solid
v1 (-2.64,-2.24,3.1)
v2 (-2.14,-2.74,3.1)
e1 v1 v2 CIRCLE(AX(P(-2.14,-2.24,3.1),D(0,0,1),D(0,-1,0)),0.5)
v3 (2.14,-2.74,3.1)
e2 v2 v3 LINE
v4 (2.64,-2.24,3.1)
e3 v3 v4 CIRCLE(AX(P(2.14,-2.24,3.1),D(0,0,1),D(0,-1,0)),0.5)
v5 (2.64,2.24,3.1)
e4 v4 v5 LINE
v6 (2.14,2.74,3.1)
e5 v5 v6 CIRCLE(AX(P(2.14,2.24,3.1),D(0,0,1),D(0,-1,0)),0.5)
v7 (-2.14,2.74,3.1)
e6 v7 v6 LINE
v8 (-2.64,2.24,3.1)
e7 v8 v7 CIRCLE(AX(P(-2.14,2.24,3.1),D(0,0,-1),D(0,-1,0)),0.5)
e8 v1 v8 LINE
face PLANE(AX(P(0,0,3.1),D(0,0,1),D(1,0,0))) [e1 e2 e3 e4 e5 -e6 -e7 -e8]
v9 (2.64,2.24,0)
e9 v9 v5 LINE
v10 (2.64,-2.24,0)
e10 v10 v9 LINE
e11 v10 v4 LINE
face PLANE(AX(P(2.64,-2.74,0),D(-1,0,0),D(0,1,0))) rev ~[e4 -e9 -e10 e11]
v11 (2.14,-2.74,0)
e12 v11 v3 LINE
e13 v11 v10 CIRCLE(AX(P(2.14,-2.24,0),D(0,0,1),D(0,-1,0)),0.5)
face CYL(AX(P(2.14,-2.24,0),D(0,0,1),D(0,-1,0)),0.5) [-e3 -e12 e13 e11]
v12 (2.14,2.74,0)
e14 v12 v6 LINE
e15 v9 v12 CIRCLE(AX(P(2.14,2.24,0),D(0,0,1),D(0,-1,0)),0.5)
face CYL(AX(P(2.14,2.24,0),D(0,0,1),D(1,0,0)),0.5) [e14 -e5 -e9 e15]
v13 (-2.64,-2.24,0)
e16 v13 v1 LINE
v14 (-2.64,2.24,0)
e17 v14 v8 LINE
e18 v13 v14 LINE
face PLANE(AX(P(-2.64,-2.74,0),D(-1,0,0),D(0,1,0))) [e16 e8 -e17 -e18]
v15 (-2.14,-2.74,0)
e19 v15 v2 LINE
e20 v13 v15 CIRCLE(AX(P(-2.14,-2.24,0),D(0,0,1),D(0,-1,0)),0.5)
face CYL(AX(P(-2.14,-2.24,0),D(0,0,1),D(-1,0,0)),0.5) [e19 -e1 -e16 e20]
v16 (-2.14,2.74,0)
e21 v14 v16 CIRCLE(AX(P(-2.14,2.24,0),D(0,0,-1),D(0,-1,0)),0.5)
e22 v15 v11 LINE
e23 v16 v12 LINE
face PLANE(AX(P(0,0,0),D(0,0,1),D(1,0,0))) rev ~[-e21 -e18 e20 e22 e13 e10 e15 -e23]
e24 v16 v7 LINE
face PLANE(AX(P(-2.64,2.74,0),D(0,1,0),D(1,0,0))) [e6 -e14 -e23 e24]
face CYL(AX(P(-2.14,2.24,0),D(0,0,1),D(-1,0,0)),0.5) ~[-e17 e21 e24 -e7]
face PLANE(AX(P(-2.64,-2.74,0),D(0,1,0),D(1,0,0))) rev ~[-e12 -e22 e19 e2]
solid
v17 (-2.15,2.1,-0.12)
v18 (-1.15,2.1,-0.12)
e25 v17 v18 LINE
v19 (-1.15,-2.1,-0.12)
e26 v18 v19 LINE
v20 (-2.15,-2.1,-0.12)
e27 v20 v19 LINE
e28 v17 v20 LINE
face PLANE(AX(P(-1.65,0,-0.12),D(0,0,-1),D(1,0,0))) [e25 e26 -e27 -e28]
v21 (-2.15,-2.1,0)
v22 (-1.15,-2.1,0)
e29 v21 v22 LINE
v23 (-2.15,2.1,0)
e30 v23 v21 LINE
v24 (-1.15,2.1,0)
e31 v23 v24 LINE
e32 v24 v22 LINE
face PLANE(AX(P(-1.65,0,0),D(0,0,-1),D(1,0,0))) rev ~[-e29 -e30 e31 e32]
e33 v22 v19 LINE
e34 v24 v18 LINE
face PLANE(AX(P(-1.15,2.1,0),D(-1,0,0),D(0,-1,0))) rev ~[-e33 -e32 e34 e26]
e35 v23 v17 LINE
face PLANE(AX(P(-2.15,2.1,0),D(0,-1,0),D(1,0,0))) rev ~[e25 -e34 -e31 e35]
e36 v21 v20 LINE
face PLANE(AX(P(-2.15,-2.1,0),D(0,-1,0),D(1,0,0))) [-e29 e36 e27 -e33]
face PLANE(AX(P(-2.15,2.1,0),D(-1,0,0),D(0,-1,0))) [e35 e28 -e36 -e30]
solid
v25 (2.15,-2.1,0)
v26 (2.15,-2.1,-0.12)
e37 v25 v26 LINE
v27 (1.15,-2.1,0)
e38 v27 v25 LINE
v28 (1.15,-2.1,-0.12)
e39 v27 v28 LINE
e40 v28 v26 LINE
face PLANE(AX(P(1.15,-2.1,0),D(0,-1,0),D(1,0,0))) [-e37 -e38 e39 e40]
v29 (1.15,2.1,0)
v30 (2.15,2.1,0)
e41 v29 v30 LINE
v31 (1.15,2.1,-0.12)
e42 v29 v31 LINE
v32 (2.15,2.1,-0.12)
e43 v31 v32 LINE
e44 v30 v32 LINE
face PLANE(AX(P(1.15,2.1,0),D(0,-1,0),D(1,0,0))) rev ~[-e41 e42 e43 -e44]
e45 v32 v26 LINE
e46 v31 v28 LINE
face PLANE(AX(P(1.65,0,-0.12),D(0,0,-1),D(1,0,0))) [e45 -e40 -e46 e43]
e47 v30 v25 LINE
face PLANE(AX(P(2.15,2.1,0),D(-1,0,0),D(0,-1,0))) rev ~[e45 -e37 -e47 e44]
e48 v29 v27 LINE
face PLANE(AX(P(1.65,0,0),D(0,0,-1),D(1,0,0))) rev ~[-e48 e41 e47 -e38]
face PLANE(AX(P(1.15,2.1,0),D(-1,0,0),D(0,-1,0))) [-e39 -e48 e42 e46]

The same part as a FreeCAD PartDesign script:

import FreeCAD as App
import Part
import Sketcher
from FreeCAD import Vector
Q = App.Units.Quantity


def edges_at(feature, points):
    """Names of the edges that pass closest to the given points."""
    edges = feature.Shape.Edges
    near = lambda p: min(range(len(edges)), key=lambda i: edges[i].distToShape(Part.Vertex(*p))[0])
    return sorted({f"Edge{near(p) + 1}" for p in points})


def add_polygon(sketch, points):
    """Adds a closed chain of lines whose ends are joined by coincident constraints."""
    first, n = sketch.GeometryCount, len(points)
    for a, b in zip(points, points[1:] + points[:1]):
        sketch.addGeometry(Part.LineSegment(App.Vector(*a, 0), App.Vector(*b, 0)), False)
    for i in range(n):
        sketch.addConstraint(Sketcher.Constraint("Coincident", first + i, 2, first + (i + 1) % n, 1))

doc = App.newDocument("Part")
body = doc.addObject("PartDesign::Body", "Body")

# Sketch on XY plane
sketch1 = body.newObject("Sketcher::SketchObject", "Sketch")
sketch1.AttachmentSupport = (doc.getObject("XY_Plane"), [""])
sketch1.MapMode = "FlatFace"
add_polygon(sketch1, [(-2.64, 2.74), (-2.64, -2.74), (2.64, -2.74), (2.64, 2.74)])  # lines 0-3
sketch1.addConstraint([
    Sketcher.Constraint("Vertical", 0),
    Sketcher.Constraint("Horizontal", 1),
    Sketcher.Constraint("Vertical", 2),
    Sketcher.Constraint("Horizontal", 3),
    Sketcher.Constraint("Symmetric", 0, 2, 2, 2, -1, 1),
    Sketcher.Constraint("DistanceX", 1, 1, 1, 2, Q("5.28 mm")),
    Sketcher.Constraint("DistanceY", 0, 2, 0, 1, Q("5.48 mm")),
])
pad1 = body.newObject("PartDesign::Pad", "Pad")
pad1.Profile = sketch1
pad1.Length = 3.1
doc.recompute()

fillet = body.newObject("PartDesign::Fillet", "Fillet")
fillet.Base = (pad1, edges_at(pad1, [
    (-2.64, -2.74, 1.55),
    (2.64, -2.74, 1.55),
    (2.64, 2.74, 1.55),
    (-2.64, 2.74, 1.55),
]))
fillet.Radius = 0.5
body2 = doc.addObject("PartDesign::Body", "Body001")
body2.AllowCompound = True

# Sketch on XY plane
sketch2 = body2.newObject("Sketcher::SketchObject", "Sketch001")
sketch2.AttachmentSupport = (doc.getObject("XY_Plane001"), [""])
sketch2.MapMode = "FlatFace"
add_polygon(sketch2, [(1.15, -2.1), (1.15, 2.1), (2.15, 2.1), (2.15, -2.1)])  # lines 0-3
add_polygon(sketch2, [(-2.15, -2.1), (-2.15, 2.1), (-1.15, 2.1), (-1.15, -2.1)])  # lines 4-7
sketch2.addConstraint([
    Sketcher.Constraint("Vertical", 0),
    Sketcher.Constraint("Horizontal", 1),
    Sketcher.Constraint("Vertical", 2),
    Sketcher.Constraint("Horizontal", 3),
    Sketcher.Constraint("Vertical", 4),
    Sketcher.Constraint("Horizontal", 5),
    Sketcher.Constraint("Vertical", 6),
    Sketcher.Constraint("Horizontal", 7),
    Sketcher.Constraint("Symmetric", 2, 2, 4, 2, -1, 1),
    Sketcher.Constraint("Symmetric", 0, 2, 6, 2, -1, 1),
    Sketcher.Constraint("Horizontal", 1, 2, 4, 2),
    Sketcher.Constraint("DistanceX", 1, 1, 1, 2, Q("1 mm")),
    Sketcher.Constraint("DistanceY", 0, 1, 0, 2, Q("4.2 mm")),
    Sketcher.Constraint("DistanceX", 4, 2, 0, 2, Q("3.3 mm")),
])
pad2 = body2.newObject("PartDesign::Pad", "Pad001")
pad2.Profile = sketch2
pad2.Length = 0.12
pad2.Reversed = True

doc.recompute()
